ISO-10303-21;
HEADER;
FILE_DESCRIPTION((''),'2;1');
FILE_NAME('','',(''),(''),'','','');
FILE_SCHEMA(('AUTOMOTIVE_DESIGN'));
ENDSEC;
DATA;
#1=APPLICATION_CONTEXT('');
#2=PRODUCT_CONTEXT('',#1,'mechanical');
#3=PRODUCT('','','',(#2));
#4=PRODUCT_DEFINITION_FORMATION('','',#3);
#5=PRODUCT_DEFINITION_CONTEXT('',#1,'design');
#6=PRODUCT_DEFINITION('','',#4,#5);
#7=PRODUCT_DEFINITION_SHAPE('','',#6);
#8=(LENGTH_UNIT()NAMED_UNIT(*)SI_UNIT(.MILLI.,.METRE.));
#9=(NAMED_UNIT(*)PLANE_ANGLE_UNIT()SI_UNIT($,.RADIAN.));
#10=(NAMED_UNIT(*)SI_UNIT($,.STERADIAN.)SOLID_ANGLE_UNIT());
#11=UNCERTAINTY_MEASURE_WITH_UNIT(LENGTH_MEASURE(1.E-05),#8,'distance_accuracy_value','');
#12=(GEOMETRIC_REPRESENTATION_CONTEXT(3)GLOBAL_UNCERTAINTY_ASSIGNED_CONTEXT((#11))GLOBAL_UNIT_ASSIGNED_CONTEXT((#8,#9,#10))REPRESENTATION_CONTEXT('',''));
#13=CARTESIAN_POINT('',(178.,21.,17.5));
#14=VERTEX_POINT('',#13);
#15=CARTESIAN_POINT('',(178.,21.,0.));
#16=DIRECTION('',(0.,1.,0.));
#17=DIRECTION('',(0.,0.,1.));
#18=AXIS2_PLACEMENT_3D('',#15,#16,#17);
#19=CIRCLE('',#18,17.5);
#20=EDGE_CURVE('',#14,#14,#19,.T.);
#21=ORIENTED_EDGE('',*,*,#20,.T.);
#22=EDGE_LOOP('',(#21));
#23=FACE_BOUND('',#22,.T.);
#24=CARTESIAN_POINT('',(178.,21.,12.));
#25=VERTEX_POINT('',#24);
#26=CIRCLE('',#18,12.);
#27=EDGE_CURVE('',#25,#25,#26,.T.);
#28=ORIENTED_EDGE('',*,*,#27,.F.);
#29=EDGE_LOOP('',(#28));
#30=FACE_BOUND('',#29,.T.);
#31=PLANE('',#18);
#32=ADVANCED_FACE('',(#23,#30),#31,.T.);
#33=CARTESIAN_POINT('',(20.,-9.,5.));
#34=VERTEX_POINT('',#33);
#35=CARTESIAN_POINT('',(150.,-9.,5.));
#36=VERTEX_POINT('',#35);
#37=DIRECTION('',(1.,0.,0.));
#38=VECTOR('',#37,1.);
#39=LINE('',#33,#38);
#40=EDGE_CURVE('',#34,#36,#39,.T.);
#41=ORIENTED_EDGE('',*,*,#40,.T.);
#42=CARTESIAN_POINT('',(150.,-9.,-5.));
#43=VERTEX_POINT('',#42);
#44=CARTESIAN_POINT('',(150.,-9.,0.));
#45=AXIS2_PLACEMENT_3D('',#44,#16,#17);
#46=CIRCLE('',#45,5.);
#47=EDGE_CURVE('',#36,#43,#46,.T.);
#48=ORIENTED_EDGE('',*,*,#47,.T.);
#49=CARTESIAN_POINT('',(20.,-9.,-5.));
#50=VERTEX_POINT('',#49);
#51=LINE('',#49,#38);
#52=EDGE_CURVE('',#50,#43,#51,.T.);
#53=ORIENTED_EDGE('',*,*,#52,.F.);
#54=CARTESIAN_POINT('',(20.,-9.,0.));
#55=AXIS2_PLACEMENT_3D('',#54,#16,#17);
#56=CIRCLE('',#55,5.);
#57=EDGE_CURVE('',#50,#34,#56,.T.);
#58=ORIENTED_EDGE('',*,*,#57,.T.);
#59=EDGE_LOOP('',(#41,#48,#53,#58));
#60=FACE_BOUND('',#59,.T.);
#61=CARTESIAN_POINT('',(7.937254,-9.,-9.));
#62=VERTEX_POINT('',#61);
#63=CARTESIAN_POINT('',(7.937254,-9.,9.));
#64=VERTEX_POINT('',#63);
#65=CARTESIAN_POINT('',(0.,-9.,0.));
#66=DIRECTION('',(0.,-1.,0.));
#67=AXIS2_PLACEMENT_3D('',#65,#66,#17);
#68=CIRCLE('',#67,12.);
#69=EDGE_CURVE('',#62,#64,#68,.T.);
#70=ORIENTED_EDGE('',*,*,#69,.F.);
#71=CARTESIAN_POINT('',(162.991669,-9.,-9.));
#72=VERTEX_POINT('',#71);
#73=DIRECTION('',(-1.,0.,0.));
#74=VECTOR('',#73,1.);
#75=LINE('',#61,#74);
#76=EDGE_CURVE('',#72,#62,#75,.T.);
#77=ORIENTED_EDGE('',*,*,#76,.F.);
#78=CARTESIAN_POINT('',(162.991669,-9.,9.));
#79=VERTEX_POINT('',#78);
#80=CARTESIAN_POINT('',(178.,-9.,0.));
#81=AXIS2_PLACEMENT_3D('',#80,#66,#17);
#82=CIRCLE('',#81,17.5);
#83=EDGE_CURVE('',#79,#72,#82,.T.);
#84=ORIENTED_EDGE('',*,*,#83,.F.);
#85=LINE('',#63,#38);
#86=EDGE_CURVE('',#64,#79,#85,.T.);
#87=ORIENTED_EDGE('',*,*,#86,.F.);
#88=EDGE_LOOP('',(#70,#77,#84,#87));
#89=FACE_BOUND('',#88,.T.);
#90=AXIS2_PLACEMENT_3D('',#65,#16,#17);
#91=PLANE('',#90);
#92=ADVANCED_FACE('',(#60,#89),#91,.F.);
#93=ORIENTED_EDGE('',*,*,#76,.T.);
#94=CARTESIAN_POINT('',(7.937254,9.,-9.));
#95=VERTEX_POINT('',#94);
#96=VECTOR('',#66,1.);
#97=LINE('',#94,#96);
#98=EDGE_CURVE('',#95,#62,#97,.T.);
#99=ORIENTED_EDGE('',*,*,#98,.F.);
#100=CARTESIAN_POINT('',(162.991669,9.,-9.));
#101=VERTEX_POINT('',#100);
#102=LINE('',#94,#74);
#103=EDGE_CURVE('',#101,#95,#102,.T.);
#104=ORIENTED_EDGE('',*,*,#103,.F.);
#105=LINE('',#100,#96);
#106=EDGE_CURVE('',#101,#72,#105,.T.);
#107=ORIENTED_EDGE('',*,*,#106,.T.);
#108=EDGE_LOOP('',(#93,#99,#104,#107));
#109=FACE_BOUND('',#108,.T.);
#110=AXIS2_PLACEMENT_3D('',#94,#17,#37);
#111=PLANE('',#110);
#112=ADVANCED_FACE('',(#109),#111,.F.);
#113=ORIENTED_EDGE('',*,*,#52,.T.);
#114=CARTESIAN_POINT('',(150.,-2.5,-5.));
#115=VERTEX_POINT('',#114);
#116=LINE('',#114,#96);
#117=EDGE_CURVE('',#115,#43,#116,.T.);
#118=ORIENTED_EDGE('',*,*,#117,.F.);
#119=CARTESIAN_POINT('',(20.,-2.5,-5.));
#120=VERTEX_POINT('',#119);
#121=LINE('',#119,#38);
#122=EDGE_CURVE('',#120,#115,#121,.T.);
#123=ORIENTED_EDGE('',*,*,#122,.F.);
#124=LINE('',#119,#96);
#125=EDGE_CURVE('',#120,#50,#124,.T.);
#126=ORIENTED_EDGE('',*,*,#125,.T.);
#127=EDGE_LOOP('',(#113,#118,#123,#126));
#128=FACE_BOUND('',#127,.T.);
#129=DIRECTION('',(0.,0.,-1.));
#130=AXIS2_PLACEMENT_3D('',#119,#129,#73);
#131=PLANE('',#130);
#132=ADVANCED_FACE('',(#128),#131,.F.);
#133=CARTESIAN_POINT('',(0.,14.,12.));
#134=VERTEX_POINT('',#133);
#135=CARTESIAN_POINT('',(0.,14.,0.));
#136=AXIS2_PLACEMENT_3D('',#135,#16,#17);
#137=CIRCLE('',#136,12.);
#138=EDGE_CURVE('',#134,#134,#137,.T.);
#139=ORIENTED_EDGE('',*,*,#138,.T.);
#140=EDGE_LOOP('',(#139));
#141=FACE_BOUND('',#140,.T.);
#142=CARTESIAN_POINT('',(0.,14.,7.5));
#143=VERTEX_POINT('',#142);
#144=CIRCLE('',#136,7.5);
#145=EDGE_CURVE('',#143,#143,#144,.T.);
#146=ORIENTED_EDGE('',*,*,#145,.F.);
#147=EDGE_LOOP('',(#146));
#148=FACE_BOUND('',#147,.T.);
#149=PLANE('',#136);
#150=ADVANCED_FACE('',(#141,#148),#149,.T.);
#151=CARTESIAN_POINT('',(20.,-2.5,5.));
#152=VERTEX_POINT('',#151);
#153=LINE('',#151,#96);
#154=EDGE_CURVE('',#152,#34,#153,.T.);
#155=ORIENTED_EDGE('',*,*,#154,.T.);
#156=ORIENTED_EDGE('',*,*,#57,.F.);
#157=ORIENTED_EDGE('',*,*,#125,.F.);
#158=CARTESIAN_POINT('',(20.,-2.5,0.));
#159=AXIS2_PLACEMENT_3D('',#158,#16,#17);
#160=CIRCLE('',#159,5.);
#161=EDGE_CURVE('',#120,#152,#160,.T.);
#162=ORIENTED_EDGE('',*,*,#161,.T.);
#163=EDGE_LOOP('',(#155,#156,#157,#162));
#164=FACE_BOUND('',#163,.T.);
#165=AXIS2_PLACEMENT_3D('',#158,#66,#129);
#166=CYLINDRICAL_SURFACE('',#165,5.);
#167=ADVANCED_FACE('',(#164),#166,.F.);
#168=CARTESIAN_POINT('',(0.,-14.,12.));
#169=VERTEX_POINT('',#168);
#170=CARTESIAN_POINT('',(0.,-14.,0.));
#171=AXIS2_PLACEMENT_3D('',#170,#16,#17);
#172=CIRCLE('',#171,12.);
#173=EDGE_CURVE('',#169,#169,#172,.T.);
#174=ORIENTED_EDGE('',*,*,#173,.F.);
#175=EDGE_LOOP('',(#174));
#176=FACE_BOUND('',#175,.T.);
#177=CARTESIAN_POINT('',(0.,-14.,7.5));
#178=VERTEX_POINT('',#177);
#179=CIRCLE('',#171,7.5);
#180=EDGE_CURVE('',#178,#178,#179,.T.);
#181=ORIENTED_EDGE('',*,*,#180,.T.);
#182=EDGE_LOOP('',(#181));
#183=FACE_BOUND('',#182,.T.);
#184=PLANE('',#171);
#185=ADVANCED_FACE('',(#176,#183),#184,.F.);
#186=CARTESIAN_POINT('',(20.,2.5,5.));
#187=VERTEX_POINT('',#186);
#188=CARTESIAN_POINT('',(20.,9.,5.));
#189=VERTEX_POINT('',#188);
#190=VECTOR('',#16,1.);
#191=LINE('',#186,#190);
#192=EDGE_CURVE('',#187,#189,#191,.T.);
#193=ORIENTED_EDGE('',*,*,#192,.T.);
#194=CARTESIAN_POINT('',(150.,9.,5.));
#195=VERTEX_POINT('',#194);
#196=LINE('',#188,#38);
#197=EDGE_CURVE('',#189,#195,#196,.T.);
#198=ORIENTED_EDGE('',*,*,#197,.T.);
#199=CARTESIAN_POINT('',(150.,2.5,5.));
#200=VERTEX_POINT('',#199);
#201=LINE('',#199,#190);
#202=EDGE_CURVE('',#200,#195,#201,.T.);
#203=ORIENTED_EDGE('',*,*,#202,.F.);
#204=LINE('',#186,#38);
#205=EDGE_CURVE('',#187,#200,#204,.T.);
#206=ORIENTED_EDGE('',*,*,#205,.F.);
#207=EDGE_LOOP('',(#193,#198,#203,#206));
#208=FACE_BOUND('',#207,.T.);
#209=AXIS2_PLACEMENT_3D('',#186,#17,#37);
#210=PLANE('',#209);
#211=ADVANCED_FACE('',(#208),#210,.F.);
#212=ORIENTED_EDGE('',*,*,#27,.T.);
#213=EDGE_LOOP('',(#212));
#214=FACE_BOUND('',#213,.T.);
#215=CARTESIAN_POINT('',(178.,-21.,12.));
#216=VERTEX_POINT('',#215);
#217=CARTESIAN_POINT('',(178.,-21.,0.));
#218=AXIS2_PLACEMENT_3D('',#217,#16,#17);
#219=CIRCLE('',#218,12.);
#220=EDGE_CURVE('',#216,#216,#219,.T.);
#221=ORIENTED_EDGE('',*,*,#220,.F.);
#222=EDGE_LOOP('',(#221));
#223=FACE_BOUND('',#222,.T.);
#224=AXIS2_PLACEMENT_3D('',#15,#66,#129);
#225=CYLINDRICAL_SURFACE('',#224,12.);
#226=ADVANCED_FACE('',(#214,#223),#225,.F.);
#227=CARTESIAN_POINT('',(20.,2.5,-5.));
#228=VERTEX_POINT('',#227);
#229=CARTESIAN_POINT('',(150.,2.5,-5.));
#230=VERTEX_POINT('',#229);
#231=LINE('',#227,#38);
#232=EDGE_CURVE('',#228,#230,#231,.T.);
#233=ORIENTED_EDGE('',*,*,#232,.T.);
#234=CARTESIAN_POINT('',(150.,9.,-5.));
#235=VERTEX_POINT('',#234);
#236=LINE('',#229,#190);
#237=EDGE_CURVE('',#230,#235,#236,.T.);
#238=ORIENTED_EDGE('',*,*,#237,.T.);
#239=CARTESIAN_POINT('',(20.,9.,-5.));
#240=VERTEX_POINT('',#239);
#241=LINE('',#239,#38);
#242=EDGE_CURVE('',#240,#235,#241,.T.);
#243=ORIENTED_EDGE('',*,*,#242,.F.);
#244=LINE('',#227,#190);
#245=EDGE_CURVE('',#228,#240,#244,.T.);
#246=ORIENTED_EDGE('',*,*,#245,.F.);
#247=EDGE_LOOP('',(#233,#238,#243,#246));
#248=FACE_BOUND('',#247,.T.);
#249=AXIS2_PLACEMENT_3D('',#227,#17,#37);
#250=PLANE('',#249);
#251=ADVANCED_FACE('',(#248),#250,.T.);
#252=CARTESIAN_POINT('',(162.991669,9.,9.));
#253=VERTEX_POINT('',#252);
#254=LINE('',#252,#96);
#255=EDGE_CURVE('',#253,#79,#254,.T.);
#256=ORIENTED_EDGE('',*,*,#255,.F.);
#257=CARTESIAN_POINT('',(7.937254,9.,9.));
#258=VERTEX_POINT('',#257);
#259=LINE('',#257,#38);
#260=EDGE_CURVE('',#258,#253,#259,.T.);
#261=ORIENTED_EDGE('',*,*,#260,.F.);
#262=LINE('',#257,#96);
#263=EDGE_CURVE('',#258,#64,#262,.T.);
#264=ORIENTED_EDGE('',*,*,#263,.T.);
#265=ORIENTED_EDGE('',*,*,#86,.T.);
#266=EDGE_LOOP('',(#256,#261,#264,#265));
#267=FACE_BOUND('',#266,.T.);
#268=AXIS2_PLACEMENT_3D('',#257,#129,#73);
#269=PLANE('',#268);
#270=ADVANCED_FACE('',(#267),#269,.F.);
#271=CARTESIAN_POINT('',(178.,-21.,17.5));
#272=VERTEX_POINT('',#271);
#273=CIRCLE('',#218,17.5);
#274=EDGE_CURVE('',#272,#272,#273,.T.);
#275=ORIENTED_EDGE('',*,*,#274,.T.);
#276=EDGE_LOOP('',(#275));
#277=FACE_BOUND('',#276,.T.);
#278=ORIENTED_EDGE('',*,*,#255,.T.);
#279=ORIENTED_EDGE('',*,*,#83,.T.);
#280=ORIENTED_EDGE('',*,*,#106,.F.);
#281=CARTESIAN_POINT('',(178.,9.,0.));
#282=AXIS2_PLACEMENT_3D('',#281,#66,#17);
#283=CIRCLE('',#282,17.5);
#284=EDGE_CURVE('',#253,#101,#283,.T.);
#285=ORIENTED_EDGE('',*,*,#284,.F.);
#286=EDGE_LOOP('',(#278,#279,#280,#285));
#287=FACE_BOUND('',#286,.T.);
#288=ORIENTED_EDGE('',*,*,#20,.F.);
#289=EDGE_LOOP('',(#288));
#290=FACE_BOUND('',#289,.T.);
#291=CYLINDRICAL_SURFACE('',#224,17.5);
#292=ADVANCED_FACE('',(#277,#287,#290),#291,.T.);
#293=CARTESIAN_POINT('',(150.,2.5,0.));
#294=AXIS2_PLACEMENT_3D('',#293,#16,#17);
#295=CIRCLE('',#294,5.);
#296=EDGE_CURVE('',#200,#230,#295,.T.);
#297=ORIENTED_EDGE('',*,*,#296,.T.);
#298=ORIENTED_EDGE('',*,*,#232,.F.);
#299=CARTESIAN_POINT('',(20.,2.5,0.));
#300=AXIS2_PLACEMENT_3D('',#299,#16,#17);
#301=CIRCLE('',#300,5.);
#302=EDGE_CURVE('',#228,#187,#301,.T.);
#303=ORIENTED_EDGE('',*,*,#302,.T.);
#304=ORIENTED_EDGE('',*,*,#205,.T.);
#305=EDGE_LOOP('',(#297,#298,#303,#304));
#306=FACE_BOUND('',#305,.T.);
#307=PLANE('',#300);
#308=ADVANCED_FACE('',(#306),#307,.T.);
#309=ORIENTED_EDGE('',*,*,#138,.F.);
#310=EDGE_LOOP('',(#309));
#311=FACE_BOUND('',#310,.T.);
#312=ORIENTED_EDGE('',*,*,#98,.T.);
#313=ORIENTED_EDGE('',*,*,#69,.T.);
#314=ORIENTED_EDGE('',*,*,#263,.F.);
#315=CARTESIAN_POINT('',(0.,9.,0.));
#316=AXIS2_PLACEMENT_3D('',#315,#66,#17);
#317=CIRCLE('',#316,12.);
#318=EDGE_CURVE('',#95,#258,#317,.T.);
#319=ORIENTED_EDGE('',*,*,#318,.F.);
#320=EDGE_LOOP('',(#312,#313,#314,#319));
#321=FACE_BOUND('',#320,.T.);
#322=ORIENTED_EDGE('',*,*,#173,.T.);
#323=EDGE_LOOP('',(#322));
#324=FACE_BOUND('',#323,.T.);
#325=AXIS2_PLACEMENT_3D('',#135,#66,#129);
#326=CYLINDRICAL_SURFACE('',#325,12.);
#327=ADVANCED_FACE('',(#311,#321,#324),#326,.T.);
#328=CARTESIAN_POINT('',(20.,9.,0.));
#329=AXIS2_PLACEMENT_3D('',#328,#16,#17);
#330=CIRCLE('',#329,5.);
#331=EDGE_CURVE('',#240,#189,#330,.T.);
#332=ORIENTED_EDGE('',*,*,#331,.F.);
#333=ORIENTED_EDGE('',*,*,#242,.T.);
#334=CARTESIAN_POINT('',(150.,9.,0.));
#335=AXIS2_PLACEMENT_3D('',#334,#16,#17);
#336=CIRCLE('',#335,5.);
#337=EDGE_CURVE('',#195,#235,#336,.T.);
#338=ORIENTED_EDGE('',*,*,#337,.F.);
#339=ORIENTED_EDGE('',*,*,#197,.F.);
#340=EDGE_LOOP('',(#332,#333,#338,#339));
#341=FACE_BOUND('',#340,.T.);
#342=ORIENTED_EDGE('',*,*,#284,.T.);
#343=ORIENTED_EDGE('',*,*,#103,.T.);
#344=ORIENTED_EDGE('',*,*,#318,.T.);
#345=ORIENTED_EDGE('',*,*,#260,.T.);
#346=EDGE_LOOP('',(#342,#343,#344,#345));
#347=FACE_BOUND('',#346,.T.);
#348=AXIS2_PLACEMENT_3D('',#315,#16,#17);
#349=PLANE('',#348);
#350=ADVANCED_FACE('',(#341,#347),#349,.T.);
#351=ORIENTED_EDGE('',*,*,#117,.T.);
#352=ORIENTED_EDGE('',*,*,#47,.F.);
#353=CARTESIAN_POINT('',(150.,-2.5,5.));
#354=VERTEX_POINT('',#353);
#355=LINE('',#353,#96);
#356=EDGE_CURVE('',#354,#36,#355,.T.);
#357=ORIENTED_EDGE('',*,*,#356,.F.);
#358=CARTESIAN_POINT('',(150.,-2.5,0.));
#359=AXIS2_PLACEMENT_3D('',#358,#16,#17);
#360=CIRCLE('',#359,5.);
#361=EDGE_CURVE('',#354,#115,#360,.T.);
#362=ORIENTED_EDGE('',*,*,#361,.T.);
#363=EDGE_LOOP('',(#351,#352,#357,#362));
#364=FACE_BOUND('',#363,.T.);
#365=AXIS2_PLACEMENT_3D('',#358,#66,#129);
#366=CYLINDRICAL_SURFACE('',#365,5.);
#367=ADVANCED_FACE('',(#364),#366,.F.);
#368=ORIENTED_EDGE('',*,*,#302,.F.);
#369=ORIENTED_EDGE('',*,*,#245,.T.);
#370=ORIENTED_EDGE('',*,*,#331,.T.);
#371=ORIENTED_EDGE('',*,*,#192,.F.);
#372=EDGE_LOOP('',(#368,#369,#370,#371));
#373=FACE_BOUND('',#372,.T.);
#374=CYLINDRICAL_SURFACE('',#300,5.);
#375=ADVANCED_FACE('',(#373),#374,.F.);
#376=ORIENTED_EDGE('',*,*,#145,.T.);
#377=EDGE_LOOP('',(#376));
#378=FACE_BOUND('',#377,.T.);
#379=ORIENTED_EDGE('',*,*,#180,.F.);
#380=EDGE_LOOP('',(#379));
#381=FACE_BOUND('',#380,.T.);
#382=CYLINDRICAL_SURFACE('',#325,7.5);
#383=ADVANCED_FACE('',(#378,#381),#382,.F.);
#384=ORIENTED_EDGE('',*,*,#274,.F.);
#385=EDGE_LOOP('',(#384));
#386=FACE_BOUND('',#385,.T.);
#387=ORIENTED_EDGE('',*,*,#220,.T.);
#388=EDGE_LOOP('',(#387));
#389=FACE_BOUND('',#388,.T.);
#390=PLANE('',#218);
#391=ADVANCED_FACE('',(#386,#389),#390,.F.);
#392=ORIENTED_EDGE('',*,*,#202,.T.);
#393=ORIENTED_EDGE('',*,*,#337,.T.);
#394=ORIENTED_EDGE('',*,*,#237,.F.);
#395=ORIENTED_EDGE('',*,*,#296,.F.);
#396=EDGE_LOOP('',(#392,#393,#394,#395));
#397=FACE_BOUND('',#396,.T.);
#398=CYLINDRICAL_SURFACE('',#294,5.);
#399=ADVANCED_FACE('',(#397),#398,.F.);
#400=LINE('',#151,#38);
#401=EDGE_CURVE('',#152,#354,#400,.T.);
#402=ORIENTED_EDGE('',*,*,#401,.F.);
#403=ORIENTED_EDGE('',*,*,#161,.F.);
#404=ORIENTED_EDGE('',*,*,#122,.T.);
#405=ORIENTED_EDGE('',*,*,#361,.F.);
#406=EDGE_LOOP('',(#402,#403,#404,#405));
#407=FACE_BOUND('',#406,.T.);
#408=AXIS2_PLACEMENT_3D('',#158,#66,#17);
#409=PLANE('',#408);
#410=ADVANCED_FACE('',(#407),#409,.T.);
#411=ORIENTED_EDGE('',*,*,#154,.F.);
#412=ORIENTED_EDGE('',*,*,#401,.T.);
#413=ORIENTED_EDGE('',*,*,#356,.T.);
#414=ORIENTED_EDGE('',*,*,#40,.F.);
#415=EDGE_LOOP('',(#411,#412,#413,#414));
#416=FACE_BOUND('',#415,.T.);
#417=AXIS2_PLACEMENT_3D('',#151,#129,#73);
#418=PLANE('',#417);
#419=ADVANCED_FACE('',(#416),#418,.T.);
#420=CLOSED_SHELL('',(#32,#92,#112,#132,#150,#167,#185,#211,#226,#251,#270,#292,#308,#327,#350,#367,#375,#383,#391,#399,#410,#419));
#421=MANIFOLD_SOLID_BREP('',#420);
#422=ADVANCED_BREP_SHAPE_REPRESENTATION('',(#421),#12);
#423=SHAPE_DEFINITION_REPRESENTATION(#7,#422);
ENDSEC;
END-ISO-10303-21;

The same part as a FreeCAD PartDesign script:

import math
import FreeCAD as App
import Part
import Sketcher
Q = App.Units.Quantity

doc = App.newDocument("Part")
body = doc.addObject("PartDesign::Body", "Body")

# Sketch on XZ plane
sketch1 = body.newObject("Sketcher::SketchObject", "Sketch")
sketch1.AttachmentSupport = (doc.getObject("XZ_Plane"), [""])
sketch1.MapMode = "FlatFace"
sketch1.addGeometry([
    Part.Circle(App.Vector(0, 0, 0), App.Vector(0, 0, 1), 12),
    Part.Circle(App.Vector(0, 0, 0), App.Vector(0, 0, 1), 8),
], False)
sketch1.addConstraint([
    Sketcher.Constraint("Coincident", 0, 3, -1, 1),
    Sketcher.Constraint("Coincident", 1, 3, -1, 1),
    Sketcher.Constraint("Diameter", 0, Q("24 mm")),
    Sketcher.Constraint("Diameter", 1, Q("15 mm")),
])
pad1 = body.newObject("PartDesign::Pad", "Pad")
pad1.Profile = sketch1
pad1.Length = 28
pad1.Midplane = True
body2 = doc.addObject("PartDesign::Body", "Body001")

# Sketch on XZ plane
sketch2 = body2.newObject("Sketcher::SketchObject", "Sketch001")
sketch2.AttachmentSupport = (doc.getObject("XZ_Plane001"), [""])
sketch2.MapMode = "FlatFace"
sketch2.addGeometry([
    Part.Circle(App.Vector(178, 0, 0), App.Vector(0, 0, 1), 18),
    Part.Circle(App.Vector(178, 0, 0), App.Vector(0, 0, 1), 12),
], False)
sketch2.addConstraint([
    Sketcher.Constraint("Coincident", 1, 3, 0, 3),
    Sketcher.Constraint("PointOnObject", 0, 3, -1),
    Sketcher.Constraint("Diameter", 0, Q("35 mm")),
    Sketcher.Constraint("Diameter", 1, Q("24 mm")),
    Sketcher.Constraint("DistanceX", -1, 1, 0, 3, Q("178 mm")),
])
pad2 = body2.newObject("PartDesign::Pad", "Pad001")
pad2.Profile = sketch2
pad2.Length = 42
pad2.Midplane = True
body.AllowCompound = True
doc.recompute()

boolean = body.newObject("PartDesign::Boolean", "Boolean")
boolean.Type = "Fuse"
boolean.addObjects([body2])

# Sketch on XZ plane
sketch3 = body.newObject("Sketcher::SketchObject", "Sketch002")
sketch3.AttachmentSupport = (doc.getObject("XZ_Plane"), [""])
sketch3.MapMode = "FlatFace"
sketch3.addGeometry([
    Part.LineSegment(App.Vector(8, 9, 0), App.Vector(163, 9, 0)),
    Part.ArcOfCircle(Part.Circle(App.Vector(178, 0, 0), App.Vector(0, 0, 1), 18), math.radians(149), math.radians(211)),
    Part.LineSegment(App.Vector(163, -9, 0), App.Vector(8, -9, 0)),
    Part.ArcOfCircle(Part.Circle(App.Vector(0, 0, 0), App.Vector(0, 0, 1), 12), math.radians(-49), math.radians(49)),
], False)
sketch3.addConstraint([
    Sketcher.Constraint("Coincident", 0, 2, 1, 1),
    Sketcher.Constraint("Coincident", 1, 2, 2, 1),
    Sketcher.Constraint("Coincident", 2, 2, 3, 1),
    Sketcher.Constraint("Coincident", 3, 2, 0, 1),
    Sketcher.Constraint("Horizontal", 0),
    Sketcher.Constraint("Horizontal", 2),
    Sketcher.Constraint("Coincident", 3, 3, -1, 1),
    Sketcher.Constraint("Symmetric", 0, 2, 1, 2, -1),
    Sketcher.Constraint("Radius", 3, Q("12 mm")),
    Sketcher.Constraint("Radius", 1, Q("17.5 mm")),
    Sketcher.Constraint("DistanceX", -1, 1, 1, 3, Q("178 mm")),
    Sketcher.Constraint("DistanceY", -1, 1, 0, 2, Q("9 mm")),
])
pad3 = body.newObject("PartDesign::Pad", "Pad002")
pad3.Profile = sketch3
pad3.Length = 18
pad3.Midplane = True

# Sketch on XZ plane
sketch4 = body.newObject("Sketcher::SketchObject", "Sketch003")
sketch4.AttachmentSupport = (doc.getObject("XZ_Plane"), [""])
sketch4.MapMode = "FlatFace"
sketch4.AttachmentOffset = App.Placement(App.Vector(0, 0, -9), App.Rotation())
sketch4.addGeometry([
    Part.LineSegment(App.Vector(150, -5, 0), App.Vector(20, -5, 0)),
    Part.ArcOfCircle(Part.Circle(App.Vector(20, 0, 0), App.Vector(0, 0, 1), 5), math.radians(90), math.radians(270)),
    Part.LineSegment(App.Vector(20, 5, 0), App.Vector(150, 5, 0)),
    Part.ArcOfCircle(Part.Circle(App.Vector(150, 0, 0), App.Vector(0, 0, 1), 5), math.radians(-90), math.radians(90)),
], False)
sketch4.addConstraint([
    Sketcher.Constraint("Tangent", 0, 2, 1, 2),
    Sketcher.Constraint("Tangent", 1, 1, 2, 1),
    Sketcher.Constraint("Tangent", 2, 2, 3, 2),
    Sketcher.Constraint("Tangent", 3, 1, 0, 1),
    Sketcher.Constraint("Horizontal", 0),
    Sketcher.Constraint("Horizontal", 2),
    Sketcher.Constraint("PointOnObject", 1, 3, -1),
    Sketcher.Constraint("Radius", 1, Q("5 mm")),
    Sketcher.Constraint("DistanceX", 0, 2, 0, 1, Q("130 mm")),
    Sketcher.Constraint("DistanceX", -1, 1, 1, 3, Q("20 mm")),
])
pocket1 = body.newObject("PartDesign::Pocket", "Pocket")
pocket1.Profile = sketch4
pocket1.Length = 6.5
pocket1.Reversed = True
doc.recompute()

mirrored = body.newObject("PartDesign::Mirrored", "Mirrored")
mirrored.Originals = [pocket1]
mirrored.MirrorPlane = (doc.getObject("XZ_Plane"), [""])
body.Tip = mirrored

doc.recompute()
